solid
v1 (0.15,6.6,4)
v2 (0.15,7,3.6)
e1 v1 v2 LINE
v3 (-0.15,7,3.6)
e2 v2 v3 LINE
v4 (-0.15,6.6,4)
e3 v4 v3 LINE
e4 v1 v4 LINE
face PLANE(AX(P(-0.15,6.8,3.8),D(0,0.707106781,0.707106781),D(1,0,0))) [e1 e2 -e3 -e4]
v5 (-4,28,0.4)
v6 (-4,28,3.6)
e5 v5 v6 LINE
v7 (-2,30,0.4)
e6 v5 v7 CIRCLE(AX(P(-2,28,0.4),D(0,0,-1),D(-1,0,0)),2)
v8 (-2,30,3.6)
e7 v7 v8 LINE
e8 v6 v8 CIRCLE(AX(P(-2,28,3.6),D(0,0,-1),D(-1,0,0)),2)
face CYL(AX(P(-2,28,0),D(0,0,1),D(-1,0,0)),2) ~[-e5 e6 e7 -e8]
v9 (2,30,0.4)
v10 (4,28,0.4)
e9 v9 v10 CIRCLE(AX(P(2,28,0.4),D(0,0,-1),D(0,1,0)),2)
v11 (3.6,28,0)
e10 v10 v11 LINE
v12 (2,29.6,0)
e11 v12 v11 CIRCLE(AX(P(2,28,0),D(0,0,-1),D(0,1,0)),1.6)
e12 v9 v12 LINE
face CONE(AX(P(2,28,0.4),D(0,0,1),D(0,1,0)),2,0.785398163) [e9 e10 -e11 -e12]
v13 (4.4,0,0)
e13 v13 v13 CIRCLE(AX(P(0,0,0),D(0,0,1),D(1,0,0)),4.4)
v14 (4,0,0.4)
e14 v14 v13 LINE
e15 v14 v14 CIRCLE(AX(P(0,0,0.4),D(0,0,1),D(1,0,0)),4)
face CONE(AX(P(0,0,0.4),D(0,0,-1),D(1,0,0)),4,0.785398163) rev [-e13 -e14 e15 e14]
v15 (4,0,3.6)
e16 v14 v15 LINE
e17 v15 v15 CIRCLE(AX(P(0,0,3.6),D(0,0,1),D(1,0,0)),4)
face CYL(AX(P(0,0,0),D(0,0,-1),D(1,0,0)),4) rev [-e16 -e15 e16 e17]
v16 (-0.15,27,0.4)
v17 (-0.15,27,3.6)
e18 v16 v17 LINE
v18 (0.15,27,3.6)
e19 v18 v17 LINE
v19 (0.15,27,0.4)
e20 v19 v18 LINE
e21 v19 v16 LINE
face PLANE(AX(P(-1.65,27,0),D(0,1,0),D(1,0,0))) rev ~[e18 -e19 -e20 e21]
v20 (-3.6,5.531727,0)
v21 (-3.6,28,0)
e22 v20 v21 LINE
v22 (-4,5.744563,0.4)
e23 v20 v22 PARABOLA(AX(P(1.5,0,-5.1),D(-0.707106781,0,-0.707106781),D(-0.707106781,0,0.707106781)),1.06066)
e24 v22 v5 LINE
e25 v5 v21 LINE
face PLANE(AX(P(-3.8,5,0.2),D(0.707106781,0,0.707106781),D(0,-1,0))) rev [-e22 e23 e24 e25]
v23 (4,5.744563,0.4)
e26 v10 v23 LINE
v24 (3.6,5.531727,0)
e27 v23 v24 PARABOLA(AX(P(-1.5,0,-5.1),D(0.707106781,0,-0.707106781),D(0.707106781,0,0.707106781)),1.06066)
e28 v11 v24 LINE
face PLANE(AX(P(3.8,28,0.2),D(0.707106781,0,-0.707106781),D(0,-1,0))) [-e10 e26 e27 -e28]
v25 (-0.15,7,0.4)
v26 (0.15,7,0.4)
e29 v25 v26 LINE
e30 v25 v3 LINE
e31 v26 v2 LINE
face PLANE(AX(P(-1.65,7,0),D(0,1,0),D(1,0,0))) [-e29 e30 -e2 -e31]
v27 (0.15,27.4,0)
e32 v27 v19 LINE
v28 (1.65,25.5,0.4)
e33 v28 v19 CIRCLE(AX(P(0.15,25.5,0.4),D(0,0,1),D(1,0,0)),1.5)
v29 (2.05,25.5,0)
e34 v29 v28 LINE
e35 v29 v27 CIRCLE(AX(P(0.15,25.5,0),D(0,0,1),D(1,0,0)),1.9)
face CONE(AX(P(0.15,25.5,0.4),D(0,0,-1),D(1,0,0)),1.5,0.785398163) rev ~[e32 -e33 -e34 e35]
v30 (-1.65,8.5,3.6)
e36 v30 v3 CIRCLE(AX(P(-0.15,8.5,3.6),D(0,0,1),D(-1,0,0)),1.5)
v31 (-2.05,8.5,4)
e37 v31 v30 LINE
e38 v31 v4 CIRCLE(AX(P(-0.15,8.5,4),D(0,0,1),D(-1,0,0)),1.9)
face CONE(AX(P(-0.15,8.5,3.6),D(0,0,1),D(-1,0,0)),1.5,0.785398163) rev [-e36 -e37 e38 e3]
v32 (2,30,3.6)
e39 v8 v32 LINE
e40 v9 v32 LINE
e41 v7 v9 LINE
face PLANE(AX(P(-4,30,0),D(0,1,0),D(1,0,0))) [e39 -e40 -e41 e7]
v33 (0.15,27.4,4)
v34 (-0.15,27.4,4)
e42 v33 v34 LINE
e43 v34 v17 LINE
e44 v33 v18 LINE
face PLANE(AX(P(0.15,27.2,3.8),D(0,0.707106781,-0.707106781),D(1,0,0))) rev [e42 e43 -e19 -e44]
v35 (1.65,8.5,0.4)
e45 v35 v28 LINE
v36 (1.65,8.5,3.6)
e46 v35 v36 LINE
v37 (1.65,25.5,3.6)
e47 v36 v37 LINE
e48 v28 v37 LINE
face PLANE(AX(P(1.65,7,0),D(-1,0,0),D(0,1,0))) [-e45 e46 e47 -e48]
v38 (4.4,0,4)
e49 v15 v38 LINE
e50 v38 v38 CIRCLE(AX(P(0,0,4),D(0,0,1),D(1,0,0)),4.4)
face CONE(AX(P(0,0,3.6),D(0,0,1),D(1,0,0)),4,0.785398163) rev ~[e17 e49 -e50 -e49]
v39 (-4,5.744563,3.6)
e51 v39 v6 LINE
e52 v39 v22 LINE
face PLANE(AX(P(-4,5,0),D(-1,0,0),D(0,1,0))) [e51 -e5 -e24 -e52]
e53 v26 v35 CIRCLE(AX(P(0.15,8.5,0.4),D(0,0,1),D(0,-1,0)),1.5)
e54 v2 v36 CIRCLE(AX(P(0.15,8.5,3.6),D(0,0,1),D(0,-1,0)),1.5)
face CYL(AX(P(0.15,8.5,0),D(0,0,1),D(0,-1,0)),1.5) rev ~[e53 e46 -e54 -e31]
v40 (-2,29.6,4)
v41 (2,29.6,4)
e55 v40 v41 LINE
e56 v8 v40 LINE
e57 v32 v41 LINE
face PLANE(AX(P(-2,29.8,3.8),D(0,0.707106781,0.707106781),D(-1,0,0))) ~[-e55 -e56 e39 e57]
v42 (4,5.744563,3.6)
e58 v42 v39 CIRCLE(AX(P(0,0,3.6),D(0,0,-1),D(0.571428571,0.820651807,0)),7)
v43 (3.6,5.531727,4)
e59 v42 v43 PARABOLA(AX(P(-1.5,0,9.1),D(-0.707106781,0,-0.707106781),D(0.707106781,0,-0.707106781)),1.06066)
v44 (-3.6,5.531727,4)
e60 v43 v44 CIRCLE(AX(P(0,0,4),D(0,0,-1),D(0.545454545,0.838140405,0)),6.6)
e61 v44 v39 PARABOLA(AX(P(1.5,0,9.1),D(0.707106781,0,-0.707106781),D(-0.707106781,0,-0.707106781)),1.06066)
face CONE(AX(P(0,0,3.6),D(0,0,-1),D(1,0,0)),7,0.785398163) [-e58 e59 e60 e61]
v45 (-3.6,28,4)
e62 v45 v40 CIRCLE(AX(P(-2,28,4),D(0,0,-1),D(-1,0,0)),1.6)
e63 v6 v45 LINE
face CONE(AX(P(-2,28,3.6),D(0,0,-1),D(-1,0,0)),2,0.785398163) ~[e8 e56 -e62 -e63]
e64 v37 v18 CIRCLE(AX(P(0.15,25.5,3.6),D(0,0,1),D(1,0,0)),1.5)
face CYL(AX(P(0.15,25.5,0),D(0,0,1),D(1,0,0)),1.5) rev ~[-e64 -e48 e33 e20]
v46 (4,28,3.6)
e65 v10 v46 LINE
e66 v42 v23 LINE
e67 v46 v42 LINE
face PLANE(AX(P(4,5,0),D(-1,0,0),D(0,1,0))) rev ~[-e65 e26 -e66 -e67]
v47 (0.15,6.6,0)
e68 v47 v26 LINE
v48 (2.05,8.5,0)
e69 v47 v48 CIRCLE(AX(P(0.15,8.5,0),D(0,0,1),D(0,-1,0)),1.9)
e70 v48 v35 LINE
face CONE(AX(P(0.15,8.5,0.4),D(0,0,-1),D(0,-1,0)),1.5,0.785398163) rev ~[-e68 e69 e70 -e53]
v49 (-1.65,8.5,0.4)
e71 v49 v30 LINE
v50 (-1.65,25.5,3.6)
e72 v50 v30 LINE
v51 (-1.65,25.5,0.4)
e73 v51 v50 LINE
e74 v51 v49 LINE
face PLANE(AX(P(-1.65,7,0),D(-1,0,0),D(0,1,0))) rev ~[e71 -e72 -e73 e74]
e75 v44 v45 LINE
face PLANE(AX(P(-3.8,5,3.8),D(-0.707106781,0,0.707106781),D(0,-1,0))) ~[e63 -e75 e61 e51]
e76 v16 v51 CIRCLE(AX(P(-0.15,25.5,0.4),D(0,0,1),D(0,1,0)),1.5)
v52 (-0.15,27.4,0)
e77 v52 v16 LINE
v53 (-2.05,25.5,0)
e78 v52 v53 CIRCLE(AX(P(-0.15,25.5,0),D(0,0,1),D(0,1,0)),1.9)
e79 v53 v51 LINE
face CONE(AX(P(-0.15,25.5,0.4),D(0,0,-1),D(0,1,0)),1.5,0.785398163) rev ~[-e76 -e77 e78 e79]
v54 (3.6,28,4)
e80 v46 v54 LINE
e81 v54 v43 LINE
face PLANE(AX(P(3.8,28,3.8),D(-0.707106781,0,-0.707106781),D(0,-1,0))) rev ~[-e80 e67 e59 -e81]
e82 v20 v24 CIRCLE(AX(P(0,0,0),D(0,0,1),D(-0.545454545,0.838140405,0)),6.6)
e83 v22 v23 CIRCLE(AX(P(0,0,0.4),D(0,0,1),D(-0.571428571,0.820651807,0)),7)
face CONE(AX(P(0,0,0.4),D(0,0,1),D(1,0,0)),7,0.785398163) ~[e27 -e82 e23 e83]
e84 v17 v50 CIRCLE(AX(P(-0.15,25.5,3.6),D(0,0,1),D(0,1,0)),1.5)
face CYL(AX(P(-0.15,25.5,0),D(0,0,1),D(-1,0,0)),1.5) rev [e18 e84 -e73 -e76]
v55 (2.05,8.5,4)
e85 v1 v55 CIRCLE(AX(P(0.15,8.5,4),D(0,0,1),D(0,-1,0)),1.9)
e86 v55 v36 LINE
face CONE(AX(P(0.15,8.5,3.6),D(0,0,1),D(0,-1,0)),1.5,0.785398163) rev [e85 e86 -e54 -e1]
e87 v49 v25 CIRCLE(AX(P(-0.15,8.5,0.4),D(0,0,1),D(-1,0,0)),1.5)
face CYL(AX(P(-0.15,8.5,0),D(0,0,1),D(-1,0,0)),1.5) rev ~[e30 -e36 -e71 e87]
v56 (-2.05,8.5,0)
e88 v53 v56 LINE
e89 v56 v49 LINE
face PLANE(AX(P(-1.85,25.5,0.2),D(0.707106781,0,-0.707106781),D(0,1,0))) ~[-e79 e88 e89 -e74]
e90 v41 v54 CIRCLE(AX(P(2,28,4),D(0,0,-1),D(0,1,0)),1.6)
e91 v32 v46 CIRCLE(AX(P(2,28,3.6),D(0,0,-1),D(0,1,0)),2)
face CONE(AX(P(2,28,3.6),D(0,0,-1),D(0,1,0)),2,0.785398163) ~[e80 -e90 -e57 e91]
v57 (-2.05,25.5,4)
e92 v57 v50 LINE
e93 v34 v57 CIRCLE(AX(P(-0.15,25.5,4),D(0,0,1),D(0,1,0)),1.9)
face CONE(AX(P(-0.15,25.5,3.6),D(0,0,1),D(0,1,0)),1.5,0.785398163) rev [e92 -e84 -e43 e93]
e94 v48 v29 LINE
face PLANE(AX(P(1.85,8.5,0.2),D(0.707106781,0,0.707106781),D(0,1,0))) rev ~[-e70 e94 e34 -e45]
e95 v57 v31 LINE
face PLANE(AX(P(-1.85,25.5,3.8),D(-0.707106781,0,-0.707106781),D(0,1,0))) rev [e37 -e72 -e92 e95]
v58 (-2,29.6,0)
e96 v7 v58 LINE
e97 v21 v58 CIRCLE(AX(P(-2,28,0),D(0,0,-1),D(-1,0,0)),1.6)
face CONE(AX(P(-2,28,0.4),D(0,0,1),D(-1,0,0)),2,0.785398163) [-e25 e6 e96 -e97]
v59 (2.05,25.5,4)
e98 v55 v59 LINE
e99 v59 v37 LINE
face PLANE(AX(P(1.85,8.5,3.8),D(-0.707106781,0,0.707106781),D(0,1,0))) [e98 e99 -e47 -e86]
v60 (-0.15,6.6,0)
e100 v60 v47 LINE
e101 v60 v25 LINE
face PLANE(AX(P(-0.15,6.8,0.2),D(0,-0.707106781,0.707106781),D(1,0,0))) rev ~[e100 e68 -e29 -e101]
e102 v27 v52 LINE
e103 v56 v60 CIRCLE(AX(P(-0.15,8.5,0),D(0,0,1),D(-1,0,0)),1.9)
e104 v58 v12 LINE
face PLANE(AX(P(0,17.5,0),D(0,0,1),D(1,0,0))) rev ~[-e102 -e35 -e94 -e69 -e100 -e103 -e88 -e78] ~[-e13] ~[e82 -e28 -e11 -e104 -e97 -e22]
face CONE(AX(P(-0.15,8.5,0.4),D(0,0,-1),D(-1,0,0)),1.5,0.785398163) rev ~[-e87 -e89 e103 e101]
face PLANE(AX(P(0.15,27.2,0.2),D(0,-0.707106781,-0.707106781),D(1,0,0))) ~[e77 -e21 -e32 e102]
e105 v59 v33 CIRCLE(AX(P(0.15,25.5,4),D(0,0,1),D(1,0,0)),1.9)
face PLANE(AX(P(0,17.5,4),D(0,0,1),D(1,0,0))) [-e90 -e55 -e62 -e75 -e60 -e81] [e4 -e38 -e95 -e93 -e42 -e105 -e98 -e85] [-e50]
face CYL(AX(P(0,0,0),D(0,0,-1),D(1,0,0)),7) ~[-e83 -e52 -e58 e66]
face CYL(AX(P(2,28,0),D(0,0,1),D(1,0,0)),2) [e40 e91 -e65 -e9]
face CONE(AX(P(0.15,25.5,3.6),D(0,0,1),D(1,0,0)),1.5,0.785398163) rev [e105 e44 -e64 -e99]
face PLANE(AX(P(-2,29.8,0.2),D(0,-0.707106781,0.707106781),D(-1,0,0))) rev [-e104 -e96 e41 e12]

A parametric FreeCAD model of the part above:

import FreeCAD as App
import Part
import Sketcher
from FreeCAD import Vector
Q = App.Units.Quantity


def edges_at(feature, points):
    """Names of the edges that pass closest to the given points."""
    edges = feature.Shape.Edges
    near = lambda p: min(range(len(edges)), key=lambda i: edges[i].distToShape(Part.Vertex(*p))[0])
    return sorted({f"Edge{near(p) + 1}" for p in points})


def add_polygon(sketch, points):
    """Adds a closed chain of lines whose ends are joined by coincident constraints."""
    first, n = sketch.GeometryCount, len(points)
    for a, b in zip(points, points[1:] + points[:1]):
        sketch.addGeometry(Part.LineSegment(App.Vector(*a, 0), App.Vector(*b, 0)), False)
    for i in range(n):
        sketch.addConstraint(Sketcher.Constraint("Coincident", first + i, 2, first + (i + 1) % n, 1))

doc = App.newDocument("Part")
params = doc.addObject("Spreadsheet::Sheet", "Params")
for row, (alias, value) in enumerate([
    ("sketch1_height", "20 mm"),
    ("sketch1_width", "3.3 mm"),
    ("pad1_length", "10 mm"),
    ("fillet_radius", "1.5 mm"),
    ("sketch2_width", "8 mm"),
    ("sketch2_height", "25 mm"),
    ("pad2_length", "4 mm"),
    ("fillet2_radius", "2 mm"),
    ("chamfer_size", "0.4 mm"),
    ("sketch3_diameter", "14 mm"),
    ("sketch3_diameter2", "8 mm"),
    ("pad3_length", "4 mm"),
    ("chamfer2_size", "0.4 mm"),
], start=1):
    params.set(f"A{row}", alias)
    params.set(f"B{row}", "=" + value)
    params.setAlias(f"B{row}", alias)

body = doc.addObject("PartDesign::Body", "Body")

sketch1 = doc.addObject("Sketcher::SketchObject", "Sketch")
body.addObject(sketch1)
sketch1.AttachmentSupport = (doc.XY_Plane, [""])
sketch1.MapMode = "FlatFace"
add_polygon(sketch1, [(-1.6, 27), (-1.6, 7), (1.6, 7), (1.6, 27)])
sketch1.addConstraint([
    Sketcher.Constraint("Vertical", 0),
    Sketcher.Constraint("Horizontal", 1),
    Sketcher.Constraint("Vertical", 2),
    Sketcher.Constraint("Horizontal", 3),
    Sketcher.Constraint("DistanceY", 0, 2, 0, 1, Q("20 mm")),
    Sketcher.Constraint("DistanceX", 1, 1, 1, 2, Q("3.3 mm")),
    Sketcher.Constraint("DistanceY", -1, 1, 0, 2, Q("7 mm")),
    Sketcher.Constraint("DistanceX", 0, 2, -1, 1, Q("1.65 mm")),
])
sketch1.setExpression("Constraints[8]", "Params.sketch1_height")
sketch1.setExpression("Constraints[9]", "Params.sketch1_width")
pad1 = doc.addObject("PartDesign::Pad", "Pad")
body.addObject(pad1)
pad1.Profile = sketch1
pad1.setExpression("Length", "Params.pad1_length")
doc.recompute()

fillet = doc.addObject("PartDesign::Fillet", "Fillet")
body.addObject(fillet)
fillet.Base = (pad1, edges_at(pad1, [
    (-1.65, 7, 5),
    (-1.65, 27, 5),
    (1.65, 7, 5),
    (1.65, 27, 5),
]))
fillet.setExpression("Radius", "Params.fillet_radius")
body2 = doc.addObject("PartDesign::Body", "Body001")

sketch2 = doc.addObject("Sketcher::SketchObject", "Sketch001")
body2.addObject(sketch2)
sketch2.AttachmentSupport = (doc.getObject("XY_Plane001"), [""])
sketch2.MapMode = "FlatFace"
add_polygon(sketch2, [(-4, 30), (-4, 5), (4, 5), (4, 30)])
sketch2.addConstraint([
    Sketcher.Constraint("Vertical", 0),
    Sketcher.Constraint("Horizontal", 1),
    Sketcher.Constraint("Vertical", 2),
    Sketcher.Constraint("Horizontal", 3),
    Sketcher.Constraint("DistanceX", 1, 1, 1, 2, Q("8 mm")),
    Sketcher.Constraint("DistanceY", 0, 2, 0, 1, Q("25 mm")),
    Sketcher.Constraint("DistanceX", 0, 2, -1, 1, Q("4 mm")),
    Sketcher.Constraint("DistanceY", -1, 1, 0, 2, Q("5 mm")),
])
sketch2.setExpression("Constraints[8]", "Params.sketch2_width")
sketch2.setExpression("Constraints[9]", "Params.sketch2_height")
pad2 = doc.addObject("PartDesign::Pad", "Pad001")
body2.addObject(pad2)
pad2.Profile = sketch2
pad2.setExpression("Length", "Params.pad2_length")
doc.recompute()

fillet2 = doc.addObject("PartDesign::Fillet", "Fillet001")
body2.addObject(fillet2)
fillet2.Base = (pad2, edges_at(pad2, [(-4, 30, 2), (4, 30, 2)]))
fillet2.setExpression("Radius", "Params.fillet2_radius")
doc.recompute()

boolean = doc.addObject("PartDesign::Boolean", "Boolean")
body2.addObject(boolean)
boolean.Type = "Cut"
boolean.addObjects([body])
doc.recompute()

chamfer = doc.addObject("PartDesign::Chamfer", "Chamfer")
body2.addObject(chamfer)
chamfer.Base = (boolean, edges_at(boolean, [
    (-4, 16.5, 4),
    (-4, 16.5, 0),
    (-3.414, 29.414, 4),
    (0, 5, 4),
    (0, 30, 4),
    (4, 16.5, 4),
    (3.414, 29.414, 4),
    (-1.211, 7.439, 4),
    (0, 7, 4),
    (1.211, 7.439, 4),
    (1.65, 17, 4),
    (1.211, 26.561, 4),
    (0, 27, 4),
    (-1.211, 26.561, 4),
    (-1.65, 17, 4),
    (0, 5, 0),
    (-3.414, 29.414, 0),
    (0, 30, 0),
    (4, 16.5, 0),
    (3.414, 29.414, 0),
    (-1.211, 7.439, 0),
    (0, 7, 0),
    (1.211, 7.439, 0),
    (1.65, 17, 0),
    (1.211, 26.561, 0),
    (0, 27, 0),
    (-1.211, 26.561, 0),
    (-1.65, 17, 0),
]))
chamfer.setExpression("Size", "Params.chamfer_size")
body3 = doc.addObject("PartDesign::Body", "Body002")

sketch3 = doc.addObject("Sketcher::SketchObject", "Sketch002")
body3.addObject(sketch3)
sketch3.AttachmentSupport = (doc.getObject("XY_Plane002"), [""])
sketch3.MapMode = "FlatFace"
sketch3.addGeometry([
    Part.Circle(Vector(0, 0, 0), Vector(0, 0, 1), 7),
    Part.Circle(Vector(0, 0, 0), Vector(0, 0, 1), 4),
], False)
sketch3.addConstraint([
    Sketcher.Constraint("Coincident", 0, 3, -1, 1),
    Sketcher.Constraint("Coincident", 1, 3, -1, 1),
    Sketcher.Constraint("Diameter", 0, Q("14 mm")),
    Sketcher.Constraint("Diameter", 1, Q("8 mm")),
])
sketch3.setExpression("Constraints[2]", "Params.sketch3_diameter")
sketch3.setExpression("Constraints[3]", "Params.sketch3_diameter2")
pad3 = doc.addObject("PartDesign::Pad", "Pad002")
body3.addObject(pad3)
pad3.Profile = sketch3
pad3.setExpression("Length", "Params.pad3_length")
doc.recompute()

chamfer2 = doc.addObject("PartDesign::Chamfer", "Chamfer001")
body3.addObject(chamfer2)
chamfer2.Base = (pad3, edges_at(pad3, [
    (-7, 0, 4),
    (-7, 0, 0),
    (-4, 0, 4),
    (-4, 0, 0),
]))
chamfer2.setExpression("Size", "Params.chamfer2_size")
doc.recompute()

boolean2 = doc.addObject("PartDesign::Boolean", "Boolean001")
body3.addObject(boolean2)
boolean2.Type = "Fuse"
boolean2.addObjects([body2])

doc.recompute()
